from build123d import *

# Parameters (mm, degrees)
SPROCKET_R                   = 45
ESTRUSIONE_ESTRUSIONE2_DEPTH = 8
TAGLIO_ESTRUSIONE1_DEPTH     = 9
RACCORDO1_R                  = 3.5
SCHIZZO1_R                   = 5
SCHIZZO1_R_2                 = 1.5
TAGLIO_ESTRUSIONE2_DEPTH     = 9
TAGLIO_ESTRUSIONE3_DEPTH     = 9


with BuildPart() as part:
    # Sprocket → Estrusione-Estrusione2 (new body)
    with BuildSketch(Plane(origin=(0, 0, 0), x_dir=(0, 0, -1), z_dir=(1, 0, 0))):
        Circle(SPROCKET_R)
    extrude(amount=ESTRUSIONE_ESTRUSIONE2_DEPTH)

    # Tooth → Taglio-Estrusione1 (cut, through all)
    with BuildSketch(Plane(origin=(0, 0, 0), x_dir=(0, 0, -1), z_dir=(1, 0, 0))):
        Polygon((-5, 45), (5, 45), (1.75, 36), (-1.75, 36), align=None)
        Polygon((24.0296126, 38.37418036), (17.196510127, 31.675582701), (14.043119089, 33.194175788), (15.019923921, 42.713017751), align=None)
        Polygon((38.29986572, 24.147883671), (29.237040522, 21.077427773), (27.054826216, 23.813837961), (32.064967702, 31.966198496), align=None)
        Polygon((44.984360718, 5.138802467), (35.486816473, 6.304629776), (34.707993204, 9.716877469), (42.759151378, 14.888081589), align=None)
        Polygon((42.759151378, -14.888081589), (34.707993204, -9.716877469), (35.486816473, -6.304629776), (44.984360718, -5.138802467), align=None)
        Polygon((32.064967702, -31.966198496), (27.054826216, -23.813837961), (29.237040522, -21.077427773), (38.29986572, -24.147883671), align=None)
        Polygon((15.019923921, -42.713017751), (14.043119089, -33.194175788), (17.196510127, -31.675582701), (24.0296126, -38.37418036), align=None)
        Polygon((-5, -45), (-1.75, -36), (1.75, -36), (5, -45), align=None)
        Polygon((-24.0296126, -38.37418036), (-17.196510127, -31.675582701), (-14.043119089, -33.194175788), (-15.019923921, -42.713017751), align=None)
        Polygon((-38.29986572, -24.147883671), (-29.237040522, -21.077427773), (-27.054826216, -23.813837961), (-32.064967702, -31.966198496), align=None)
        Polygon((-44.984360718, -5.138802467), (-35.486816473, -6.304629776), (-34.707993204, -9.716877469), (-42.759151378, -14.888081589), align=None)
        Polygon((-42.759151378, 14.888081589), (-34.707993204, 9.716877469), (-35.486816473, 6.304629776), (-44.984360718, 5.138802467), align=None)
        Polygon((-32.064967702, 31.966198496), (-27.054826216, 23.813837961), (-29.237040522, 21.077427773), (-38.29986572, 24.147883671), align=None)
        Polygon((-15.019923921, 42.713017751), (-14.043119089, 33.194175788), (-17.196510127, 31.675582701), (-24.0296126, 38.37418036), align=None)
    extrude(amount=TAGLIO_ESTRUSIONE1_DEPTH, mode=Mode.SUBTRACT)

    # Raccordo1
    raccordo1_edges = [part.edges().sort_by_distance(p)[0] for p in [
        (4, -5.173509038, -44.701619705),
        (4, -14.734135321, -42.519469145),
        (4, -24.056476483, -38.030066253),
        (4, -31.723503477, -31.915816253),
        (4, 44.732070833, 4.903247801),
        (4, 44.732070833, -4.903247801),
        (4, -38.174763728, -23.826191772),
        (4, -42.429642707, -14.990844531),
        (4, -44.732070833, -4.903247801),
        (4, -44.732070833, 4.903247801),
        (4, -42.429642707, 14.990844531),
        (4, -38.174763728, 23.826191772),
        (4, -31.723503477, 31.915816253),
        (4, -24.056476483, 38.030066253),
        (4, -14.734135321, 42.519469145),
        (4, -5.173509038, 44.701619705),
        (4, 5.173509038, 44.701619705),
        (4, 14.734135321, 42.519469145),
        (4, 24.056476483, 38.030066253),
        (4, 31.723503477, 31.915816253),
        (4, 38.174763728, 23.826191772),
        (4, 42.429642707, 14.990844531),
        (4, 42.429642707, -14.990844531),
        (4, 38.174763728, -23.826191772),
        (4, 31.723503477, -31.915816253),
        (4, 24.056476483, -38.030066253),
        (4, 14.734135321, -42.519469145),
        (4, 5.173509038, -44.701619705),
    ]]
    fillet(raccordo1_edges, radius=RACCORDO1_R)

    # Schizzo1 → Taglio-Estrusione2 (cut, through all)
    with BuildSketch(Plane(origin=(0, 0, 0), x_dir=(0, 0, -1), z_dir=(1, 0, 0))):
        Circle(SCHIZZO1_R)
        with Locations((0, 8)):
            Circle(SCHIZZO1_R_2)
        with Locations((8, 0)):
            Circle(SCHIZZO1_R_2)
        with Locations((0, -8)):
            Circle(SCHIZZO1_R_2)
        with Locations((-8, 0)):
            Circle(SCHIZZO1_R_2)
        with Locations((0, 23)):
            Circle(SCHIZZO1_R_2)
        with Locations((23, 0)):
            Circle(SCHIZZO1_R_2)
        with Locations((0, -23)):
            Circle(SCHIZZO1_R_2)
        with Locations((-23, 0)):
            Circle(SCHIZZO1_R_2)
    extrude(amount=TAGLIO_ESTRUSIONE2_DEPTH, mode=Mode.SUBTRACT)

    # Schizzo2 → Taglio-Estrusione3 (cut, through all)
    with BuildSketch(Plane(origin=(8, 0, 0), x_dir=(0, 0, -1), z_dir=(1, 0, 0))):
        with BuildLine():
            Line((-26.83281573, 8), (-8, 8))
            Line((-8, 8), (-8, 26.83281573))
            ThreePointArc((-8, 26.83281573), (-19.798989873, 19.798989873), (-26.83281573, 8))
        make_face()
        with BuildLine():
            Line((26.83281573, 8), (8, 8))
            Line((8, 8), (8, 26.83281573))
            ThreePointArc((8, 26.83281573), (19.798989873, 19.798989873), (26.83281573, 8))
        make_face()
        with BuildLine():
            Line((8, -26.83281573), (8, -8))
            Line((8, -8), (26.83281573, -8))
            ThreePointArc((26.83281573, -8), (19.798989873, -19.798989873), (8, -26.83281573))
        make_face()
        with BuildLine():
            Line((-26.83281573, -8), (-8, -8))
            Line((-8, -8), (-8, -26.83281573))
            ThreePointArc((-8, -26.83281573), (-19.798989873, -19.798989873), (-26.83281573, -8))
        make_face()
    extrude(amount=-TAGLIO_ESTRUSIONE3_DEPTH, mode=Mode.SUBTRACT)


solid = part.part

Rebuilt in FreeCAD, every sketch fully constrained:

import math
import FreeCAD as App
import Part
import Sketcher
Q = App.Units.Quantity


def edges_at(feature, points):
    """Names of the edges that pass closest to the given points."""
    edges = feature.Shape.Edges
    near = lambda p: min(range(len(edges)), key=lambda i: edges[i].distToShape(Part.Vertex(*p))[0])
    return sorted({f"Edge{near(p) + 1}" for p in points})


def add_polygon(sketch, points):
    """Adds a closed chain of lines whose ends are joined by coincident constraints."""
    first, n = sketch.GeometryCount, len(points)
    for a, b in zip(points, points[1:] + points[:1]):
        sketch.addGeometry(Part.LineSegment(App.Vector(*a, 0), App.Vector(*b, 0)), False)
    for i in range(n):
        sketch.addConstraint(Sketcher.Constraint("Coincident", first + i, 2, first + (i + 1) % n, 1))

doc = App.newDocument("Part")
body = doc.addObject("PartDesign::Body", "Body")

# Sketch on YZ plane
sketch1 = body.newObject("Sketcher::SketchObject", "Sketch")
sketch1.AttachmentSupport = (doc.getObject("YZ_Plane"), [""])
sketch1.MapMode = "FlatFace"
sketch1.addGeometry(Part.Circle(App.Vector(0, 0, 0), App.Vector(0, 0, 1), 45), False)
sketch1.addConstraint([
    Sketcher.Constraint("Coincident", 0, 3, -1, 1),
    Sketcher.Constraint("Diameter", 0, Q("90 mm")),
])
pad1 = body.newObject("PartDesign::Pad", "Pad")
pad1.Profile = sketch1
pad1.Length = 8

# Sketch on YZ plane
sketch2 = body.newObject("Sketcher::SketchObject", "Sketch001")
sketch2.AttachmentSupport = (doc.getObject("YZ_Plane"), [""])
sketch2.MapMode = "FlatFace"
add_polygon(sketch2, [(45, -5), (45, 5), (36, 1.75), (36, -1.75)])  # lines 0-3
add_polygon(sketch2, [(31.675583, -17.19651), (38.37418, -24.029613), (42.713018, -15.019924), (33.194176, -14.043119)])  # lines 4-7
add_polygon(sketch2, [(21.077428, -29.237041), (24.147884, -38.299866), (31.966198, -32.064968), (23.813838, -27.054826)])  # lines 8-11
add_polygon(sketch2, [(6.30463, -35.486816), (5.138802, -44.984361), (14.888082, -42.759151), (9.716877, -34.707993)])  # lines 12-15
add_polygon(sketch2, [(-9.716877, -34.707993), (-14.888082, -42.759151), (-5.138802, -44.984361), (-6.30463, -35.486816)])  # lines 16-19
add_polygon(sketch2, [(-23.813838, -27.054826), (-31.966198, -32.064968), (-24.147884, -38.299866), (-21.077428, -29.237041)])  # lines 20-23
add_polygon(sketch2, [(-33.194176, -14.043119), (-42.713018, -15.019924), (-38.37418, -24.029613), (-31.675583, -17.19651)])  # lines 24-27
add_polygon(sketch2, [(-36, 1.75), (-45, 5), (-45, -5), (-36, -1.75)])  # lines 28-31
add_polygon(sketch2, [(-31.675583, 17.19651), (-38.37418, 24.029613), (-42.713018, 15.019924), (-33.194176, 14.043119)])  # lines 32-35
add_polygon(sketch2, [(-21.077428, 29.237041), (-24.147884, 38.299866), (-31.966198, 32.064968), (-23.813838, 27.054826)])  # lines 36-39
add_polygon(sketch2, [(-6.30463, 35.486816), (-5.138802, 44.984361), (-14.888082, 42.759151), (-9.716877, 34.707993)])  # lines 40-43
add_polygon(sketch2, [(9.716877, 34.707993), (14.888082, 42.759151), (5.138802, 44.984361), (6.30463, 35.486816)])  # lines 44-47
add_polygon(sketch2, [(23.813838, 27.054826), (31.966198, 32.064968), (24.147884, 38.299866), (21.077428, 29.237041)])  # lines 48-51
add_polygon(sketch2, [(33.194176, 14.043119), (42.713018, 15.019924), (38.37418, 24.029613), (31.675583, 17.19651)])  # lines 52-55
sketch2.addConstraint([
    Sketcher.Constraint("Vertical", 0),
    Sketcher.Constraint("Vertical", 2),
    Sketcher.Constraint("Vertical", 29),
    Sketcher.Constraint("Vertical", 31),
    Sketcher.Constraint("Symmetric", 3, 2, 28, 2, -1, 1),
    Sketcher.Constraint("Symmetric", 1, 2, 30, 2, -1, 1),
    Sketcher.Constraint("Symmetric", 4, 2, 32, 2, -1, 1),
    Sketcher.Constraint("Symmetric", 5, 2, 33, 2, -1, 1),
    Sketcher.Constraint("Symmetric", 6, 2, 34, 2, -1, 1),
    Sketcher.Constraint("Symmetric", 7, 2, 35, 2, -1, 1),
    Sketcher.Constraint("Symmetric", 8, 2, 36, 2, -1, 1),
    Sketcher.Constraint("Symmetric", 9, 2, 37, 2, -1, 1),
    Sketcher.Constraint("Symmetric", 10, 2, 38, 2, -1, 1),
    Sketcher.Constraint("Symmetric", 11, 2, 39, 2, -1, 1),
    Sketcher.Constraint("Symmetric", 12, 2, 40, 2, -1, 1),
    Sketcher.Constraint("Symmetric", 13, 2, 41, 2, -1, 1),
    Sketcher.Constraint("Symmetric", 14, 2, 42, 2, -1, 1),
    Sketcher.Constraint("Symmetric", 15, 2, 43, 2, -1, 1),
    Sketcher.Constraint("Symmetric", 16, 2, 44, 2, -1, 1),
    Sketcher.Constraint("Symmetric", 17, 2, 45, 2, -1, 1),
    Sketcher.Constraint("Symmetric", 18, 2, 46, 2, -1, 1),
    Sketcher.Constraint("Symmetric", 19, 2, 47, 2, -1, 1),
    Sketcher.Constraint("Symmetric", 20, 2, 48, 2, -1, 1),
    Sketcher.Constraint("Symmetric", 21, 2, 49, 2, -1, 1),
    Sketcher.Constraint("Symmetric", 22, 2, 50, 2, -1, 1),
    Sketcher.Constraint("Symmetric", 23, 2, 51, 2, -1, 1),
    Sketcher.Constraint("Symmetric", 24, 2, 52, 2, -1, 1),
    Sketcher.Constraint("Symmetric", 25, 2, 53, 2, -1, 1),
    Sketcher.Constraint("Symmetric", 26, 2, 54, 2, -1, 1),
    Sketcher.Constraint("Symmetric", 27, 2, 55, 2, -1, 1),
    Sketcher.Constraint("Symmetric", 13, 2, 16, 2, -2),
    Sketcher.Constraint("Symmetric", 12, 2, 17, 2, -2),
    Sketcher.Constraint("Symmetric", 15, 2, 18, 2, -2),
    Sketcher.Constraint("Symmetric", 14, 2, 19, 2, -2),
    Sketcher.Constraint("Symmetric", 9, 2, 20, 2, -2),
    Sketcher.Constraint("Symmetric", 8, 2, 21, 2, -2),
    Sketcher.Constraint("Symmetric", 11, 2, 22, 2, -2),
    Sketcher.Constraint("Symmetric", 10, 2, 23, 2, -2),
    Sketcher.Constraint("Symmetric", 5, 2, 24, 2, -2),
    Sketcher.Constraint("Symmetric", 4, 2, 25, 2, -2),
    Sketcher.Constraint("Symmetric", 7, 2, 26, 2, -2),
    Sketcher.Constraint("Symmetric", 6, 2, 27, 2, -2),
    Sketcher.Constraint("Parallel", 5, 7),
    Sketcher.Constraint("Parallel", 9, 11),
    Sketcher.Constraint("Parallel", 13, 15),
    Sketcher.Constraint("Parallel", 3, 28),
    Sketcher.Constraint("Parallel", 1, 30),
    Sketcher.Constraint("Horizontal", 0, 2, 28, 2),
    Sketcher.Constraint("Horizontal", 2, 2, 30, 2),
    Sketcher.Constraint("Equal", 3, 4),
    Sketcher.Constraint("Equal", 4, 6),
    Sketcher.Constraint("Equal", 6, 8),
    Sketcher.Constraint("Equal", 5, 9),
    Sketcher.Constraint("Equal", 8, 10),
    Sketcher.Constraint("Equal", 7, 11),
    Sketcher.Constraint("Equal", 10, 12),
    Sketcher.Constraint("Equal", 9, 13),
    Sketcher.Constraint("Equal", 12, 14),
    Sketcher.Constraint("Equal", 11, 15),
    Sketcher.Constraint("DistanceY", 0, 1, 0, 2, Q("10 mm")),
    Sketcher.Constraint("Distance", 5, Q("10 mm")),
    Sketcher.Constraint("DistanceY", 2, 2, 2, 1, Q("3.5 mm")),
    Sketcher.Constraint("DistanceX", -1, 1, 0, 2, Q("45 mm")),
    Sketcher.Constraint("DistanceX", -1, 1, 1, 2, Q("36 mm")),
    Sketcher.Constraint("Distance", 7, Q("3.5 mm")),
    Sketcher.Constraint("DistanceX", -1, 1, 9, 2, Q("31.966198 mm")),
    Sketcher.Constraint("DistanceX", 8, 2, 7, 2, Q("7.527699 mm")),
    Sketcher.Constraint("DistanceY", 8, 2, 9, 2, Q("6.234898 mm")),
    Sketcher.Constraint("DistanceX", -1, 1, 4, 2, Q("38.37418 mm")),
    Sketcher.Constraint("DistanceY", 6, 2, -1, 1, Q("14.043119 mm")),
    Sketcher.Constraint("DistanceY", 11, 2, -1, 1, Q("29.237041 mm")),
    Sketcher.Constraint("DistanceY", 12, 2, -1, 1, Q("44.984361 mm")),
    Sketcher.Constraint("DistanceX", -1, 1, 13, 2, Q("14.888082 mm")),
    Sketcher.Constraint("DistanceY", 13, 2, -1, 1, Q("42.759151 mm")),
])
pocket1 = body.newObject("PartDesign::Pocket", "Pocket")
pocket1.Profile = sketch2
pocket1.Type = "ThroughAll"
pocket1.Reversed = True
doc.recompute()

fillet = body.newObject("PartDesign::Fillet", "Fillet")
fillet.Base = (pocket1, edges_at(pocket1, [
    (4, -5.174, -44.702),
    (4, -14.734, -42.519),
    (4, -24.056, -38.03),
    (4, -31.724, -31.916),
    (4, 44.732, 4.903),
    (4, 44.732, -4.903),
    (4, -38.175, -23.826),
    (4, -42.43, -14.991),
    (4, -44.732, -4.903),
    (4, -44.732, 4.903),
    (4, -42.43, 14.991),
    (4, -38.175, 23.826),
    (4, -31.724, 31.916),
    (4, -24.056, 38.03),
    (4, -14.734, 42.519),
    (4, -5.174, 44.702),
    (4, 5.174, 44.702),
    (4, 14.734, 42.519),
    (4, 24.056, 38.03),
    (4, 31.724, 31.916),
    (4, 38.175, 23.826),
    (4, 42.43, 14.991),
    (4, 42.43, -14.991),
    (4, 38.175, -23.826),
    (4, 31.724, -31.916),
    (4, 24.056, -38.03),
    (4, 14.734, -42.519),
    (4, 5.174, -44.702),
]))
fillet.Radius = 3.5

# Sketch on YZ plane
sketch3 = body.newObject("Sketcher::SketchObject", "Sketch002")
sketch3.AttachmentSupport = (doc.getObject("YZ_Plane"), [""])
sketch3.MapMode = "FlatFace"
sketch3.addGeometry([
    Part.Circle(App.Vector(0, 0, 0), App.Vector(0, 0, 1), 5),  # 0
    Part.Circle(App.Vector(8, 0, 0), App.Vector(0, 0, 1), 1.5),  # 1
    Part.Circle(App.Vector(0, -8, 0), App.Vector(0, 0, 1), 1.5),  # 2
    Part.Circle(App.Vector(-8, 0, 0), App.Vector(0, 0, 1), 1.5),  # 3
    Part.Circle(App.Vector(0, 8, 0), App.Vector(0, 0, 1), 1.5),  # 4
    Part.Circle(App.Vector(23, 0, 0), App.Vector(0, 0, 1), 1.5),  # 5
    Part.Circle(App.Vector(0, -23, 0), App.Vector(0, 0, 1), 1.5),  # 6
    Part.Circle(App.Vector(-23, 0, 0), App.Vector(0, 0, 1), 1.5),  # 7
    Part.Circle(App.Vector(0, 23, 0), App.Vector(0, 0, 1), 1.5),  # 8
], False)
sketch3.addConstraint([
    Sketcher.Constraint("Coincident", 0, 3, -1, 1),
    Sketcher.Constraint("Equal", 1, 2),
    Sketcher.Constraint("Equal", 2, 3),
    Sketcher.Constraint("Equal", 3, 4),
    Sketcher.Constraint("Equal", 4, 5),
    Sketcher.Constraint("Equal", 5, 6),
    Sketcher.Constraint("Equal", 6, 7),
    Sketcher.Constraint("Equal", 7, 8),
    Sketcher.Constraint("Symmetric", 1, 3, 3, 3, -1, 1),
    Sketcher.Constraint("Symmetric", 2, 3, 4, 3, -1, 1),
    Sketcher.Constraint("Symmetric", 5, 3, 7, 3, -1, 1),
    Sketcher.Constraint("Symmetric", 6, 3, 8, 3, -1, 1),
    Sketcher.Constraint("PointOnObject", 1, 3, -1),
    Sketcher.Constraint("PointOnObject", 2, 3, -2),
    Sketcher.Constraint("PointOnObject", 5, 3, -1),
    Sketcher.Constraint("PointOnObject", 6, 3, -2),
    Sketcher.Constraint("Diameter", 0, Q("10 mm")),
    Sketcher.Constraint("Diameter", 1, Q("3 mm")),
    Sketcher.Constraint("DistanceX", -1, 1, 1, 3, Q("8 mm")),
    Sketcher.Constraint("DistanceY", 2, 3, -1, 1, Q("8 mm")),
    Sketcher.Constraint("DistanceX", -1, 1, 5, 3, Q("23 mm")),
    Sketcher.Constraint("DistanceY", 6, 3, -1, 1, Q("23 mm")),
])
pocket2 = body.newObject("PartDesign::Pocket", "Pocket001")
pocket2.Profile = sketch3
pocket2.Type = "ThroughAll"
pocket2.Reversed = True

# Sketch on YZ plane
sketch4 = body.newObject("Sketcher::SketchObject", "Sketch003")
sketch4.AttachmentSupport = (doc.getObject("YZ_Plane"), [""])
sketch4.MapMode = "FlatFace"
sketch4.AttachmentOffset = App.Placement(App.Vector(0, 0, 8), App.Rotation())
sketch4.addGeometry([
    Part.LineSegment(App.Vector(8, 26.832816, 0), App.Vector(8, 8, 0)),  # 0
    Part.LineSegment(App.Vector(8, 8, 0), App.Vector(26.832816, 8, 0)),  # 1
    Part.ArcOfCircle(Part.Circle(App.Vector(0, 0, 0), App.Vector(0, 0, 1), 28), math.radians(16.60155), math.radians(73.39845)),  # 2
    Part.LineSegment(App.Vector(8, -8, 0), App.Vector(8, -26.832816, 0)),  # 3
    Part.ArcOfCircle(Part.Circle(App.Vector(0, 0, 0), App.Vector(0, 0, 1), 28), math.radians(-73.39845), math.radians(-16.60155)),  # 4
    Part.LineSegment(App.Vector(26.832816, -8, 0), App.Vector(8, -8, 0)),  # 5
    Part.LineSegment(App.Vector(-8, -8, 0), App.Vector(-26.832816, -8, 0)),  # 6
    Part.ArcOfCircle(Part.Circle(App.Vector(0, 0, 0), App.Vector(0, 0, 1), 28), math.radians(-163.39845), math.radians(-106.60155)),  # 7
    Part.LineSegment(App.Vector(-8, -26.832816, 0), App.Vector(-8, -8, 0)),  # 8
    Part.LineSegment(App.Vector(-8, 8, 0), App.Vector(-8, 26.832816, 0)),  # 9
    Part.ArcOfCircle(Part.Circle(App.Vector(0, 0, 0), App.Vector(0, 0, 1), 28), math.radians(106.60155), math.radians(163.39845)),  # 10
    Part.LineSegment(App.Vector(-26.832816, 8, 0), App.Vector(-8, 8, 0)),  # 11
], False)
sketch4.addConstraint([
    Sketcher.Constraint("Coincident", 0, 2, 1, 1),
    Sketcher.Constraint("Coincident", 1, 2, 2, 1),
    Sketcher.Constraint("Coincident", 2, 2, 0, 1),
    Sketcher.Constraint("Coincident", 3, 2, 4, 1),
    Sketcher.Constraint("Coincident", 4, 2, 5, 1),
    Sketcher.Constraint("Coincident", 5, 2, 3, 1),
    Sketcher.Constraint("Coincident", 6, 2, 7, 1),
    Sketcher.Constraint("Coincident", 7, 2, 8, 1),
    Sketcher.Constraint("Coincident", 8, 2, 6, 1),
    Sketcher.Constraint("Coincident", 9, 2, 10, 1),
    Sketcher.Constraint("Coincident", 10, 2, 11, 1),
    Sketcher.Constraint("Coincident", 11, 2, 9, 1),
    Sketcher.Constraint("Vertical", 0),
    Sketcher.Constraint("Horizontal", 1),
    Sketcher.Constraint("Vertical", 3),
    Sketcher.Constraint("Horizontal", 5),
    Sketcher.Constraint("Horizontal", 6),
    Sketcher.Constraint("Vertical", 8),
    Sketcher.Constraint("Vertical", 9),
    Sketcher.Constraint("Horizontal", 11),
    Sketcher.Constraint("Coincident", 2, 3, -1, 1),
    Sketcher.Constraint("Coincident", 4, 3, -1, 1),
    Sketcher.Constraint("Coincident", 7, 3, -1, 1),
    Sketcher.Constraint("Coincident", 10, 3, -1, 1),
    Sketcher.Constraint("Equal", 2, 4),
    Sketcher.Constraint("Equal", 4, 7),
    Sketcher.Constraint("Equal", 7, 10),
    Sketcher.Constraint("Symmetric", 0, 2, 8, 2, -1, 1),
    Sketcher.Constraint("Symmetric", 5, 2, 11, 2, -1, 1),
    Sketcher.Constraint("Symmetric", 5, 2, 8, 2, -2),
    Sketcher.Constraint("Equal", 11, 0),
    Sketcher.Constraint("Radius", 2, Q("28 mm")),
    Sketcher.Constraint("DistanceX", -1, 1, 0, 2, Q("8 mm")),
])
pocket3 = body.newObject("PartDesign::Pocket", "Pocket002")
pocket3.Profile = sketch4
pocket3.Type = "ThroughAll"

doc.recompute()
